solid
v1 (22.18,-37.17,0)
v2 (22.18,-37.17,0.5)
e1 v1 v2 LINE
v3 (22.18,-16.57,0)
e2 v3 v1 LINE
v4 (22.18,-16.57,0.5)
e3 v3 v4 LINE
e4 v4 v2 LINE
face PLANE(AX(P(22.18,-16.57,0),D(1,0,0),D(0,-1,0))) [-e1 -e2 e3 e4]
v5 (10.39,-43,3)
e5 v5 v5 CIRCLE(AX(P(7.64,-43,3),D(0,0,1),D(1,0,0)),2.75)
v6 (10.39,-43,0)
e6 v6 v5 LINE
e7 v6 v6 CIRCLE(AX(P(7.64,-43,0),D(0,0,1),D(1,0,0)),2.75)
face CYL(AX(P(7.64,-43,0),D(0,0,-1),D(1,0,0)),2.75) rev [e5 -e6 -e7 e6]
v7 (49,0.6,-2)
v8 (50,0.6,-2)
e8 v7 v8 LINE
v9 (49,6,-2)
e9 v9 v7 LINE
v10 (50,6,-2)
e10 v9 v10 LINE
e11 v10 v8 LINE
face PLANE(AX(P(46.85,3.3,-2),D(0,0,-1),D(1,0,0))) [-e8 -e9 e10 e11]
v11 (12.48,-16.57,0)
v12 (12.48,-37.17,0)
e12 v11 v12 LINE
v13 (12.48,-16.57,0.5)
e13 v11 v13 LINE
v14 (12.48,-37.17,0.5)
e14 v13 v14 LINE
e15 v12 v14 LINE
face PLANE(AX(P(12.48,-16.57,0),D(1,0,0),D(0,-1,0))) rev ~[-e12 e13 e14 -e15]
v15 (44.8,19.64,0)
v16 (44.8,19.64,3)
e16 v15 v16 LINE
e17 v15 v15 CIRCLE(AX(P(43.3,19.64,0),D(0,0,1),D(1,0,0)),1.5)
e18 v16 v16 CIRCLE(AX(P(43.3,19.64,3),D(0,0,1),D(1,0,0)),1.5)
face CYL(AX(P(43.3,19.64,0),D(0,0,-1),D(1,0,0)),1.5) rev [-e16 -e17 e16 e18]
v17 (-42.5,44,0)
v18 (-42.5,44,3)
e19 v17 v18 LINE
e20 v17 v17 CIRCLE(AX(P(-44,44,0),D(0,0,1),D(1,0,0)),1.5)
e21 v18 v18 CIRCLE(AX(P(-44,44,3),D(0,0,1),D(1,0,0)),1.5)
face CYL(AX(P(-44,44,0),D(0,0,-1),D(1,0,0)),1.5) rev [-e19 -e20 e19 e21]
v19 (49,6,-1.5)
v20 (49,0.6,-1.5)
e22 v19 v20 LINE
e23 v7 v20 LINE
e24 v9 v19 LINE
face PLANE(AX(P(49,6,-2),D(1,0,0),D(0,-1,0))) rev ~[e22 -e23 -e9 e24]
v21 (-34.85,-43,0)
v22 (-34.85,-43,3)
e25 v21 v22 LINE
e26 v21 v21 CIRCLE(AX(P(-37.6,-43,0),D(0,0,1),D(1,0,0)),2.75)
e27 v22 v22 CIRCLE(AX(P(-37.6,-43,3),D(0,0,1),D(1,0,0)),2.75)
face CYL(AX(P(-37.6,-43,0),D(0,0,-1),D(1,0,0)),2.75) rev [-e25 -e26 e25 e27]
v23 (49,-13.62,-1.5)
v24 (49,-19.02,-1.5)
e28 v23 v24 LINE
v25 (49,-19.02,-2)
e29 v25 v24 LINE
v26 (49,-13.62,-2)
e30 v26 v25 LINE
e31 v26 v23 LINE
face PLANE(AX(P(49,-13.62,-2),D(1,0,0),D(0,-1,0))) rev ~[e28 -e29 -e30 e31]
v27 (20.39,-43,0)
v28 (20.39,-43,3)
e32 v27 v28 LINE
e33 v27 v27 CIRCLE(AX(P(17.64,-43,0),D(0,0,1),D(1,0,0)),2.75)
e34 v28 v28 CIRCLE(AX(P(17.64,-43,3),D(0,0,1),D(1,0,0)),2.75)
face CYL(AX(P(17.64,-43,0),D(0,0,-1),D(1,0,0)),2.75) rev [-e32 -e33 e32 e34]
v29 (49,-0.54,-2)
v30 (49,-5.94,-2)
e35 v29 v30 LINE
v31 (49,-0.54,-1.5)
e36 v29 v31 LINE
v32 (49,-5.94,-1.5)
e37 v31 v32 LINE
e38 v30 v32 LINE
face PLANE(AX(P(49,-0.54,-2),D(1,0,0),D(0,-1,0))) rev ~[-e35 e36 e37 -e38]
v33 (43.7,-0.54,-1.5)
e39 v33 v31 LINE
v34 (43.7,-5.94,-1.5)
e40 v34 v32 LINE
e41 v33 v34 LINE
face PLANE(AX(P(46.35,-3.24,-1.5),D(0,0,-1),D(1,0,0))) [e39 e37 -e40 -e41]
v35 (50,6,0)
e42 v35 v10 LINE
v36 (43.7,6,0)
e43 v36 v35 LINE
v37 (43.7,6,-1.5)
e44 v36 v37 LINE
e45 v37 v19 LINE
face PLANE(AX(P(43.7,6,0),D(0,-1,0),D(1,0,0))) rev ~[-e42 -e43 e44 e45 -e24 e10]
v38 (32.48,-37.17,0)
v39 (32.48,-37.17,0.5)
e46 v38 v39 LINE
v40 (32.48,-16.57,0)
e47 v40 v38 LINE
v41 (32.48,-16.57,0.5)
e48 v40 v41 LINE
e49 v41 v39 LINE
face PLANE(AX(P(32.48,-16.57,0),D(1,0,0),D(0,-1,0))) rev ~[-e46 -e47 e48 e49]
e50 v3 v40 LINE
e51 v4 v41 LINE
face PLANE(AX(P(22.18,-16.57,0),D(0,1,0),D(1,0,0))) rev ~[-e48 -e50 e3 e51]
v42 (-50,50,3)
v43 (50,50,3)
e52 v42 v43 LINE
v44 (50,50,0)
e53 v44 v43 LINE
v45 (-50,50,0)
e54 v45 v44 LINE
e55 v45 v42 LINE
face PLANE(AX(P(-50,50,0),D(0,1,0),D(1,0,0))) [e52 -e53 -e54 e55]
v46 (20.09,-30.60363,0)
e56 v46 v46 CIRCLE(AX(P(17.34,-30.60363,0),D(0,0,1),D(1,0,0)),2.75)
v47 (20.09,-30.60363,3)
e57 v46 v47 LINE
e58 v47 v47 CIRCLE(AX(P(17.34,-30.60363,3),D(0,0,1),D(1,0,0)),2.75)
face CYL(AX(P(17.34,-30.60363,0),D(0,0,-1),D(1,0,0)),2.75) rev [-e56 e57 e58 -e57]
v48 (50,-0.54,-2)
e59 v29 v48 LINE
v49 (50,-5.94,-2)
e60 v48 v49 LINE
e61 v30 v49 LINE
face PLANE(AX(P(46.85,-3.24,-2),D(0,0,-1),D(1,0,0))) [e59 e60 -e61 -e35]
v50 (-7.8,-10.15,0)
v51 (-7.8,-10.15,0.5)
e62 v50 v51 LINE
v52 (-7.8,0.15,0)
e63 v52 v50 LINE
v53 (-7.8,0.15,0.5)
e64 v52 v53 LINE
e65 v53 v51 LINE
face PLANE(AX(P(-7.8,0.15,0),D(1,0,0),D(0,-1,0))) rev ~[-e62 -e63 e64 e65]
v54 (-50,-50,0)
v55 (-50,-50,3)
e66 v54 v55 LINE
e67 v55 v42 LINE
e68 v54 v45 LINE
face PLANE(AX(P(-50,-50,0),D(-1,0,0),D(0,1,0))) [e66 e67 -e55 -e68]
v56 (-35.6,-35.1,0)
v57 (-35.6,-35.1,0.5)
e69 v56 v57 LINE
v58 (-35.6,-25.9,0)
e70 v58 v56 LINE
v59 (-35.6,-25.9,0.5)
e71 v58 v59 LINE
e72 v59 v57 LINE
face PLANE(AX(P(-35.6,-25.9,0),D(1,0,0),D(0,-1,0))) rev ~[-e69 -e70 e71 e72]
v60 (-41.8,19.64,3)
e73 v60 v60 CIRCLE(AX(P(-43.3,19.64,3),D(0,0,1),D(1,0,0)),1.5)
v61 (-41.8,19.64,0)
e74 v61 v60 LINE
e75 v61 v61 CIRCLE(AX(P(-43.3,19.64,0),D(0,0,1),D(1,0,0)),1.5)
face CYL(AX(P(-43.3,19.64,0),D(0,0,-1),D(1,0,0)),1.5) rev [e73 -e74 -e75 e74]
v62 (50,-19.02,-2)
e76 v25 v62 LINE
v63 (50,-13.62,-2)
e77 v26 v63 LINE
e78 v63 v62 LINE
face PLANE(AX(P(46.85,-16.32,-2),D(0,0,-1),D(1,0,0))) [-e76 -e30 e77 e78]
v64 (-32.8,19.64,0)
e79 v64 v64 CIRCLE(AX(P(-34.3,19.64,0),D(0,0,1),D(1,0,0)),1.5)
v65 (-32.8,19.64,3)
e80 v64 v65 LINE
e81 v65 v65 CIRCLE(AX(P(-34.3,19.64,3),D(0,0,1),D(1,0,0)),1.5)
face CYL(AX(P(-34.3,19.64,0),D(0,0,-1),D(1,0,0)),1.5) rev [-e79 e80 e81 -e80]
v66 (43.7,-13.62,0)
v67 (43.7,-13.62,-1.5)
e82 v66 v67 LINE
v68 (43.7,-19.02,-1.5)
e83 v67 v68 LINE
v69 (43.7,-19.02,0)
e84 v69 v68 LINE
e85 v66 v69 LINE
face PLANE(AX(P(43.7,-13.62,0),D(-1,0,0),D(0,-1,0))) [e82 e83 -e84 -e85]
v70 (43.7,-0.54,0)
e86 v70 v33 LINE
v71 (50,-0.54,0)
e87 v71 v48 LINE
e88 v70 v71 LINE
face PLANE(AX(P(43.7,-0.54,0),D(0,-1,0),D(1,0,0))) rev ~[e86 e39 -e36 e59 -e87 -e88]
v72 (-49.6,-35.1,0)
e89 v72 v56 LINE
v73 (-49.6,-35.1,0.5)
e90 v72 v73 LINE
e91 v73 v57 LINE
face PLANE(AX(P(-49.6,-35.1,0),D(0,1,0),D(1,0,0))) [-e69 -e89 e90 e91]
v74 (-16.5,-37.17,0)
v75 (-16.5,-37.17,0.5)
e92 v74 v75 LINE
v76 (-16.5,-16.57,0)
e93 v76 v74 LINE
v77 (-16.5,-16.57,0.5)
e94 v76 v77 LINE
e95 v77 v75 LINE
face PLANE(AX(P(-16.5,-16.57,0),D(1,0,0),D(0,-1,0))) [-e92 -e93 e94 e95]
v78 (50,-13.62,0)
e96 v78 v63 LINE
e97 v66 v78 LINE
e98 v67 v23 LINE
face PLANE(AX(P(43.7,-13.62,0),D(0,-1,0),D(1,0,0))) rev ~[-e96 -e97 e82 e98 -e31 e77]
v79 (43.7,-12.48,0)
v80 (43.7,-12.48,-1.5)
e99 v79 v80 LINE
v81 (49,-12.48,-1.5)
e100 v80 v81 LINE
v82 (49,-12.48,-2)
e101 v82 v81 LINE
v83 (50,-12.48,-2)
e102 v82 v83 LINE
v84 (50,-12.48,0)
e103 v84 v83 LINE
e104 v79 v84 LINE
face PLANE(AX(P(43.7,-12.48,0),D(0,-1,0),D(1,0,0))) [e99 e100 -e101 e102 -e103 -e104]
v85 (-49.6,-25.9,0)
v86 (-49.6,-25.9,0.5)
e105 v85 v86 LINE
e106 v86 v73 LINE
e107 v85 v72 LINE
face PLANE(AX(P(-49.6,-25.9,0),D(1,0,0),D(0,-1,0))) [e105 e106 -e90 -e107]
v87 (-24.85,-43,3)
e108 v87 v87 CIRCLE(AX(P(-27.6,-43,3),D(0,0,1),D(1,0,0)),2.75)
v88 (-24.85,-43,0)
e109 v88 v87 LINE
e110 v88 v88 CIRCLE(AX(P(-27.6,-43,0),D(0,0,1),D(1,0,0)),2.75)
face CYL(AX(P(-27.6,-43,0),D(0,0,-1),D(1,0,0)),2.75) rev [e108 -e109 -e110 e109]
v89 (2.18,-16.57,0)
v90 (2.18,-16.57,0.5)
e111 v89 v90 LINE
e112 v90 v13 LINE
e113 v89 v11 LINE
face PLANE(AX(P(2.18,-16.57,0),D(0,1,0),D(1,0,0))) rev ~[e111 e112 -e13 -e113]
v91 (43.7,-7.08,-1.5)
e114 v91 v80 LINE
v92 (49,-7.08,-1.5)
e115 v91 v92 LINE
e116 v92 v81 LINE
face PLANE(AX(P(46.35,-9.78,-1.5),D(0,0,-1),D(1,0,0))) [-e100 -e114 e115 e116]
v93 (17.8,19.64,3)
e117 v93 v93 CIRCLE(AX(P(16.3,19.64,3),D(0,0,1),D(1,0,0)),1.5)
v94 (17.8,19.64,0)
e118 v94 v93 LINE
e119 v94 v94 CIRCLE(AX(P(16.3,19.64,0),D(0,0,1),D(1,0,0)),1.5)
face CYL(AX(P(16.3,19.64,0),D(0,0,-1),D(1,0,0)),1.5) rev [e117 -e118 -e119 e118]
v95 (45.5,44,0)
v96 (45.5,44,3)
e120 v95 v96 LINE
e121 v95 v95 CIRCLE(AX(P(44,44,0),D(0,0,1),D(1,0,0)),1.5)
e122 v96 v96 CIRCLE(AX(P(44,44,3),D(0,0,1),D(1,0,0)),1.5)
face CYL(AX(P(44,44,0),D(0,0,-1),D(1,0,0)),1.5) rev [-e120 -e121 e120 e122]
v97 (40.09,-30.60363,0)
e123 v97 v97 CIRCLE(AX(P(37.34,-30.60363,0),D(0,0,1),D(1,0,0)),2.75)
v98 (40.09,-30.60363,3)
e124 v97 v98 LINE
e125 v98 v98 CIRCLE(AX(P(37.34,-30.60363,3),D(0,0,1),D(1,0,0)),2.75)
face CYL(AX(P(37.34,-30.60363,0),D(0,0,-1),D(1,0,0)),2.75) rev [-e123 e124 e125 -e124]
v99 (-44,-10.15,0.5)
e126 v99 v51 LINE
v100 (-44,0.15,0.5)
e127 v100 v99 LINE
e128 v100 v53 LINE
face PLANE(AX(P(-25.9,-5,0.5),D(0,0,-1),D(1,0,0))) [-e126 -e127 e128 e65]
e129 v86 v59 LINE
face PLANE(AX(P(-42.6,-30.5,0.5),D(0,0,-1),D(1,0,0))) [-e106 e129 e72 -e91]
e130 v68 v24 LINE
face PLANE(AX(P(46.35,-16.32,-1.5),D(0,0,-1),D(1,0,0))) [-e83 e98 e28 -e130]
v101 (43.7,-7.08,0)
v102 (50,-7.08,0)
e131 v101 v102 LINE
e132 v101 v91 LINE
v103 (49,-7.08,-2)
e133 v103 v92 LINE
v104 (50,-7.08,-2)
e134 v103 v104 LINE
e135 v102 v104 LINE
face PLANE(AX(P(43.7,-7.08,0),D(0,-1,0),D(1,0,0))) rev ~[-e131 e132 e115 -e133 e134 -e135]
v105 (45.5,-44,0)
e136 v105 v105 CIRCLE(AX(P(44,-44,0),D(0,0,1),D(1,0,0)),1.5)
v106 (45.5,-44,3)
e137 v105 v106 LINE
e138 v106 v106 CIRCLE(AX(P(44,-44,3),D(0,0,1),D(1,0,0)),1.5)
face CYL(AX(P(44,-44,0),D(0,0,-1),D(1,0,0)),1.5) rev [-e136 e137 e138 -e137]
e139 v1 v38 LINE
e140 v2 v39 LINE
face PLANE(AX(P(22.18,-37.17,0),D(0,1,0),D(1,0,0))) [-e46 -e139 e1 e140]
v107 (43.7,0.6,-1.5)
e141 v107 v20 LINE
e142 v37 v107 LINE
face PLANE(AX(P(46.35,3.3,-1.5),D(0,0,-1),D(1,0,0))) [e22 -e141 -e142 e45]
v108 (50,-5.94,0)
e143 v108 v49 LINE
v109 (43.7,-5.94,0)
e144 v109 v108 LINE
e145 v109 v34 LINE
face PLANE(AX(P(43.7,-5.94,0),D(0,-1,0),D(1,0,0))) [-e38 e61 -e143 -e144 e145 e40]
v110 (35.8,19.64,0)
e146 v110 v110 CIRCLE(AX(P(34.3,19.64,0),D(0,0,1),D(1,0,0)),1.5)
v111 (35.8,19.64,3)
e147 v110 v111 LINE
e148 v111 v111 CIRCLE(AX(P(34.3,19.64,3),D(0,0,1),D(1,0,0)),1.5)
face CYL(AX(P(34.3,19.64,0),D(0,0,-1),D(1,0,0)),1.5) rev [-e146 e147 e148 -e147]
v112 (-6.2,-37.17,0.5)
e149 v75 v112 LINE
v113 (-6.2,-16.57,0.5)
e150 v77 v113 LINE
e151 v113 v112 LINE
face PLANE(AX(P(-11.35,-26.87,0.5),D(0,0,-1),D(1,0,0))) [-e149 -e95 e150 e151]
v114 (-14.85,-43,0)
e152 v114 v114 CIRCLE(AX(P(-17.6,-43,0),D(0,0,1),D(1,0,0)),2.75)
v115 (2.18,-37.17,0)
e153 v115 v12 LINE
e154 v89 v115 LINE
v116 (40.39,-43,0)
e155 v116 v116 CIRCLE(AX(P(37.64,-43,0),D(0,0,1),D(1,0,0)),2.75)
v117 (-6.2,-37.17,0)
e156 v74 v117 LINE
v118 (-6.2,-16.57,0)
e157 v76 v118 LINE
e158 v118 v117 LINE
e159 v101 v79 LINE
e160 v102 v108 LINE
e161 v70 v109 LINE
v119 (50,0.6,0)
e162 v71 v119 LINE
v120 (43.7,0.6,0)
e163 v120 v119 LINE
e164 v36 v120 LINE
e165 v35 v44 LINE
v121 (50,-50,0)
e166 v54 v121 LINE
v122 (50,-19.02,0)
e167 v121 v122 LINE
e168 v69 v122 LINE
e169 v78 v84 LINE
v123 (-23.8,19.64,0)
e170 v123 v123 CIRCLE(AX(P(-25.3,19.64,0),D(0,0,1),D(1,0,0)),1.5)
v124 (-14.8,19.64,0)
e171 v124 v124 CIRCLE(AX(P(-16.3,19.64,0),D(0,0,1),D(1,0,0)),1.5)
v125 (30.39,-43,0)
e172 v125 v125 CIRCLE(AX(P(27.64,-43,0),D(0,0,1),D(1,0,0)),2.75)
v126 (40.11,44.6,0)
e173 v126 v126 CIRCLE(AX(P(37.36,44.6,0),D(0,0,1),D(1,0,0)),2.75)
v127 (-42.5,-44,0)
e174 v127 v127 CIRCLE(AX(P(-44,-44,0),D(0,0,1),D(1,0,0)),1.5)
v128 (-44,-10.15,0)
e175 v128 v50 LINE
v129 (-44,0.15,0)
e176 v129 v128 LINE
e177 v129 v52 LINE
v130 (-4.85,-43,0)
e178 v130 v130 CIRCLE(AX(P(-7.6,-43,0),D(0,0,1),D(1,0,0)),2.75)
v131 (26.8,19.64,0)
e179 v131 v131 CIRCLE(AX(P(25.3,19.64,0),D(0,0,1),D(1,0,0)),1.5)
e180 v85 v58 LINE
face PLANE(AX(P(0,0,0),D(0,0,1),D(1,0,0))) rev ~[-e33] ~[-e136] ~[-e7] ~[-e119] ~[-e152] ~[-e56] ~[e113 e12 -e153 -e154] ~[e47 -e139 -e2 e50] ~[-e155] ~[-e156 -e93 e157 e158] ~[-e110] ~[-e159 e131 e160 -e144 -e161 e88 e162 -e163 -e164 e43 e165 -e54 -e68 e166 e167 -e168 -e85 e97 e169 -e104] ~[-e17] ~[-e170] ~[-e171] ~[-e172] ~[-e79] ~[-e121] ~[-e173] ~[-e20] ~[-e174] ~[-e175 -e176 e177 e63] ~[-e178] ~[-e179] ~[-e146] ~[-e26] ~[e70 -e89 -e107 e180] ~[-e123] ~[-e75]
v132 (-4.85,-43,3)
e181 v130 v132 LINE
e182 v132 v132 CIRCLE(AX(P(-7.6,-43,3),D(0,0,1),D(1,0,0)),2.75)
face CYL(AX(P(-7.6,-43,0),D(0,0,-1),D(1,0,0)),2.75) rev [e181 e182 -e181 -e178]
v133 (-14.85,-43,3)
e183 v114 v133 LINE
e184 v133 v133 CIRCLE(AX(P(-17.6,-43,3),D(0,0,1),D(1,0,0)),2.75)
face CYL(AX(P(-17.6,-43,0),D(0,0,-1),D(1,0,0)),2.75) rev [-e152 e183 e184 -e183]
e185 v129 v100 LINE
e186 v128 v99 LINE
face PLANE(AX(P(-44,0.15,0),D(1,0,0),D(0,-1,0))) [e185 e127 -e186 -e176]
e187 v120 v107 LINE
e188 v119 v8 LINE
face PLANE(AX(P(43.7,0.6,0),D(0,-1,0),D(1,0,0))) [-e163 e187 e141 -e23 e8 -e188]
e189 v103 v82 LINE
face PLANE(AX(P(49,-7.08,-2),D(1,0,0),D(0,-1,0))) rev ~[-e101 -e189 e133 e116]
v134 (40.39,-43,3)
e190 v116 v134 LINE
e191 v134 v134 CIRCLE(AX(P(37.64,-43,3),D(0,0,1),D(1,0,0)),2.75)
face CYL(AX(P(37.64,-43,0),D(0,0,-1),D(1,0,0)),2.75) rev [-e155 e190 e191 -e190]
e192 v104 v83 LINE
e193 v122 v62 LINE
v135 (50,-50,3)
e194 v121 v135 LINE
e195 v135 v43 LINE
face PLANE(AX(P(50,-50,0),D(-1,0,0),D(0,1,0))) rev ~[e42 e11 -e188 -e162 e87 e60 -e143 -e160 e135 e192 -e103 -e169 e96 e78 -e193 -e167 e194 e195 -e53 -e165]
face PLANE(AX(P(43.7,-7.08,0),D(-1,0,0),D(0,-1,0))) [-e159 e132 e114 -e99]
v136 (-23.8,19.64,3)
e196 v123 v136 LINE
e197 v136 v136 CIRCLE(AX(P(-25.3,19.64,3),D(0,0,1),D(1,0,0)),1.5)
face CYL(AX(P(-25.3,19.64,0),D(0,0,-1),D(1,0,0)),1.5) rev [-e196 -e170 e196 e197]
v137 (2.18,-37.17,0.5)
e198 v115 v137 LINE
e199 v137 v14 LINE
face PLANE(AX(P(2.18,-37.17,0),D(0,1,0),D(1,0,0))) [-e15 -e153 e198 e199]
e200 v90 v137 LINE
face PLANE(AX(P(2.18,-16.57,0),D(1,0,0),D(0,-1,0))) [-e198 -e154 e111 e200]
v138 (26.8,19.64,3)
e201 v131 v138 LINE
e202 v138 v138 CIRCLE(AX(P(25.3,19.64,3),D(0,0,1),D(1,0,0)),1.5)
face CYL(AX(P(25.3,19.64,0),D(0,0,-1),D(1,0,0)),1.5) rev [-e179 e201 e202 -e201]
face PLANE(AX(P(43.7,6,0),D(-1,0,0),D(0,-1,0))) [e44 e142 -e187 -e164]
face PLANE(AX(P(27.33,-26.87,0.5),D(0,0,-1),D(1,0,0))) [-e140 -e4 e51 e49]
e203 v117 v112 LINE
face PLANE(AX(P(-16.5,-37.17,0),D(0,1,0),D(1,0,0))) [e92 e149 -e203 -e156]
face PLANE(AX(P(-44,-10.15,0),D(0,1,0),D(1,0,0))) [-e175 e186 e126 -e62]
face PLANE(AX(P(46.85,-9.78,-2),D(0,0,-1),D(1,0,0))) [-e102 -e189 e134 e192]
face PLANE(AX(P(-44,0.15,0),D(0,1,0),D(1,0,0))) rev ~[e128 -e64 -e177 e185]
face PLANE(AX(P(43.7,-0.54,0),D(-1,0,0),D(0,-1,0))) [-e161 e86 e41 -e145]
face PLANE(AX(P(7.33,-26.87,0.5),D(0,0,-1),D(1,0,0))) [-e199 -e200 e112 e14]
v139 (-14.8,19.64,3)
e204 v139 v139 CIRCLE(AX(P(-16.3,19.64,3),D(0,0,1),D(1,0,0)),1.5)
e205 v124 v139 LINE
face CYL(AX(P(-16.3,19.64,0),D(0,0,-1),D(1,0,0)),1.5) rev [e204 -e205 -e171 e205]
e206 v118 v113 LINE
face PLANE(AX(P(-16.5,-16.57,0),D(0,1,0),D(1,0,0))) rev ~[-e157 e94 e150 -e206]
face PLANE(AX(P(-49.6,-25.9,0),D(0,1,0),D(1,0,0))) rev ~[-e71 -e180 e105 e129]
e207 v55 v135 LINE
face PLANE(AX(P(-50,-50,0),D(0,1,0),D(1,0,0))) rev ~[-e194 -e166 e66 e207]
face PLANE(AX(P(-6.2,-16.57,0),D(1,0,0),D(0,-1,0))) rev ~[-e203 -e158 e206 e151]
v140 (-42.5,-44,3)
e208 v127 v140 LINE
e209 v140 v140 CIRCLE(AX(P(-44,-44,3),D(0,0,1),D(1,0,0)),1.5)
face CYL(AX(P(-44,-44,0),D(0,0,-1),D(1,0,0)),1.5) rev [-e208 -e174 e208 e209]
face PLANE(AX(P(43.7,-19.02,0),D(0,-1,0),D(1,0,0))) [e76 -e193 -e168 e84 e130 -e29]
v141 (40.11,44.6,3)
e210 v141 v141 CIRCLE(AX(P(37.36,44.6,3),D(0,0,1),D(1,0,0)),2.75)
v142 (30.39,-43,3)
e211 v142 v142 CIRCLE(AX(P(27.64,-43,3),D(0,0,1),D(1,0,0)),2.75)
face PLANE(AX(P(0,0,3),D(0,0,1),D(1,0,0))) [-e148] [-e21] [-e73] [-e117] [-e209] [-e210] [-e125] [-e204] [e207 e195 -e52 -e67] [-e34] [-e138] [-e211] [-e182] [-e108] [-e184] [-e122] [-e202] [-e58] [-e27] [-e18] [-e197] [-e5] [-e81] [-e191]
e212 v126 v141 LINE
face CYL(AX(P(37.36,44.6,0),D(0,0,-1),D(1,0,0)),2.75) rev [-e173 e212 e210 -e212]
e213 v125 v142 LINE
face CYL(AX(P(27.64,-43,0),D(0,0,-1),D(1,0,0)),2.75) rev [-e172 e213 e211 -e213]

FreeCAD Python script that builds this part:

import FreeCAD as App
import Part
import Sketcher

V = App.Vector
Q = App.Units.Quantity

doc = App.newDocument("Part")
body = doc.addObject("PartDesign::Body", "Body")

# Sketch on XY plane
sketch1 = doc.addObject("Sketcher::SketchObject", "Sketch")
body.addObject(sketch1)
sketch1.AttachmentSupport = (doc.XY_Plane, [""])
sketch1.MapMode = "FlatFace"
sketch1.addGeometry(Part.LineSegment(V(-50, 50, 0), V(-50, -50, 0)), False)
sketch1.addGeometry(Part.LineSegment(V(-50, -50, 0), V(50, -50, 0)), False)
sketch1.addGeometry(Part.LineSegment(V(50, -50, 0), V(50, 50, 0)), False)
sketch1.addGeometry(Part.LineSegment(V(50, 50, 0), V(-50, 50, 0)), False)
sketch1.addGeometry(Part.Circle(V(-44, -44, 0), V(0, 0, 1), 1.5), False)
sketch1.addGeometry(Part.Circle(V(-37.6, -43, 0), V(0, 0, 1), 2.8), False)
sketch1.addGeometry(Part.Circle(V(-27.6, -43, 0), V(0, 0, 1), 2.8), False)
sketch1.addGeometry(Part.Circle(V(-17.6, -43, 0), V(0, 0, 1), 2.8), False)
sketch1.addGeometry(Part.Circle(V(-7.6, -43, 0), V(0, 0, 1), 2.8), False)
sketch1.addGeometry(Part.Circle(V(7.6, -43, 0), V(0, 0, 1), 2.8), False)
sketch1.addGeometry(Part.Circle(V(17.6, -43, 0), V(0, 0, 1), 2.8), False)
sketch1.addGeometry(Part.Circle(V(17.3, -30.6, 0), V(0, 0, 1), 2.8), False)
sketch1.addGeometry(Part.Circle(V(27.6, -43, 0), V(0, 0, 1), 2.8), False)
sketch1.addGeometry(Part.Circle(V(37.6, -43, 0), V(0, 0, 1), 2.8), False)
sketch1.addGeometry(Part.Circle(V(44, -44, 0), V(0, 0, 1), 1.5), False)
sketch1.addGeometry(Part.Circle(V(37.3, -30.6, 0), V(0, 0, 1), 2.8), False)
sketch1.addGeometry(Part.Circle(V(-43.3, 19.6, 0), V(0, 0, 1), 1.5), False)
sketch1.addGeometry(Part.Circle(V(-34.3, 19.6, 0), V(0, 0, 1), 1.5), False)
sketch1.addGeometry(Part.Circle(V(-25.3, 19.6, 0), V(0, 0, 1), 1.5), False)
sketch1.addGeometry(Part.Circle(V(-16.3, 19.6, 0), V(0, 0, 1), 1.5), False)
sketch1.addGeometry(Part.Circle(V(-44, 44, 0), V(0, 0, 1), 1.5), False)
sketch1.addGeometry(Part.Circle(V(16.3, 19.6, 0), V(0, 0, 1), 1.5), False)
sketch1.addGeometry(Part.Circle(V(25.3, 19.6, 0), V(0, 0, 1), 1.5), False)
sketch1.addGeometry(Part.Circle(V(34.3, 19.6, 0), V(0, 0, 1), 1.5), False)
sketch1.addGeometry(Part.Circle(V(43.3, 19.6, 0), V(0, 0, 1), 1.5), False)
sketch1.addGeometry(Part.Circle(V(37.4, 44.6, 0), V(0, 0, 1), 2.8), False)
sketch1.addGeometry(Part.Circle(V(44, 44, 0), V(0, 0, 1), 1.5), False)
sketch1.addConstraint(Sketcher.Constraint("Coincident", 0, 2, 1, 1))
sketch1.addConstraint(Sketcher.Constraint("Coincident", 1, 2, 2, 1))
sketch1.addConstraint(Sketcher.Constraint("Coincident", 2, 2, 3, 1))
sketch1.addConstraint(Sketcher.Constraint("Coincident", 3, 2, 0, 1))
sketch1.addConstraint(Sketcher.Constraint("Vertical", 0))
sketch1.addConstraint(Sketcher.Constraint("Horizontal", 1))
sketch1.addConstraint(Sketcher.Constraint("Vertical", 2))
sketch1.addConstraint(Sketcher.Constraint("Horizontal", 3))
sketch1.addConstraint(Sketcher.Constraint("Equal", 5, 6))
sketch1.addConstraint(Sketcher.Constraint("Equal", 6, 7))
sketch1.addConstraint(Sketcher.Constraint("Equal", 7, 8))
sketch1.addConstraint(Sketcher.Constraint("Equal", 8, 9))
sketch1.addConstraint(Sketcher.Constraint("Equal", 9, 10))
sketch1.addConstraint(Sketcher.Constraint("Equal", 10, 11))
sketch1.addConstraint(Sketcher.Constraint("Equal", 11, 12))
sketch1.addConstraint(Sketcher.Constraint("Equal", 12, 13))
sketch1.addConstraint(Sketcher.Constraint("Equal", 4, 14))
sketch1.addConstraint(Sketcher.Constraint("Equal", 13, 15))
sketch1.addConstraint(Sketcher.Constraint("Equal", 14, 16))
sketch1.addConstraint(Sketcher.Constraint("Equal", 16, 17))
sketch1.addConstraint(Sketcher.Constraint("Equal", 17, 18))
sketch1.addConstraint(Sketcher.Constraint("Equal", 18, 19))
sketch1.addConstraint(Sketcher.Constraint("Equal", 19, 20))
sketch1.addConstraint(Sketcher.Constraint("Equal", 20, 21))
sketch1.addConstraint(Sketcher.Constraint("Equal", 21, 22))
sketch1.addConstraint(Sketcher.Constraint("Equal", 22, 23))
sketch1.addConstraint(Sketcher.Constraint("Equal", 23, 24))
sketch1.addConstraint(Sketcher.Constraint("Equal", 15, 25))
sketch1.addConstraint(Sketcher.Constraint("Equal", 24, 26))
sketch1.addConstraint(Sketcher.Constraint("Symmetric", 14, 3, 20, 3, -1, 1))
sketch1.addConstraint(Sketcher.Constraint("Symmetric", 4, 3, 26, 3, -1, 1))
sketch1.addConstraint(Sketcher.Constraint("Symmetric", 0, 2, 2, 2, -1, 1))
sketch1.addConstraint(Sketcher.Constraint("Symmetric", 4, 3, 14, 3, -2))
sketch1.addConstraint(Sketcher.Constraint("Symmetric", 19, 3, 21, 3, -2))
sketch1.addConstraint(Sketcher.Constraint("Symmetric", 18, 3, 22, 3, -2))
sketch1.addConstraint(Sketcher.Constraint("Symmetric", 17, 3, 23, 3, -2))
sketch1.addConstraint(Sketcher.Constraint("Symmetric", 16, 3, 24, 3, -2))
sketch1.addConstraint(Sketcher.Constraint("Horizontal", 5, 3, 6, 3))
sketch1.addConstraint(Sketcher.Constraint("Horizontal", 6, 3, 7, 3))
sketch1.addConstraint(Sketcher.Constraint("Horizontal", 7, 3, 8, 3))
sketch1.addConstraint(Sketcher.Constraint("Horizontal", 8, 3, 9, 3))
sketch1.addConstraint(Sketcher.Constraint("Horizontal", 9, 3, 10, 3))
sketch1.addConstraint(Sketcher.Constraint("Horizontal", 10, 3, 12, 3))
sketch1.addConstraint(Sketcher.Constraint("Horizontal", 12, 3, 13, 3))
sketch1.addConstraint(Sketcher.Constraint("Horizontal", 11, 3, 15, 3))
sketch1.addConstraint(Sketcher.Constraint("Horizontal", 16, 3, 17, 3))
sketch1.addConstraint(Sketcher.Constraint("Horizontal", 17, 3, 18, 3))
sketch1.addConstraint(Sketcher.Constraint("Horizontal", 18, 3, 19, 3))
sketch1.addConstraint(Sketcher.Constraint("Equal", 3, 0))
sketch1.addConstraint(Sketcher.Constraint("Diameter", 4, Q("3 mm")))
sketch1.addConstraint(Sketcher.Constraint("Diameter", 5, Q("5.5 mm")))
sketch1.addConstraint(Sketcher.Constraint("DistanceX", 1, 1, 1, 2, Q("100 mm")))
sketch1.addConstraint(Sketcher.Constraint("DistanceX", 4, 3, -1, 1, Q("44 mm")))
sketch1.addConstraint(Sketcher.Constraint("DistanceY", 4, 3, -1, 1, Q("44 mm")))
sketch1.addConstraint(Sketcher.Constraint("DistanceY", 5, 3, -1, 1, Q("43 mm")))
sketch1.addConstraint(Sketcher.Constraint("DistanceX", 5, 3, 6, 3, Q("10 mm")))
sketch1.addConstraint(Sketcher.Constraint("DistanceX", 6, 3, 7, 3, Q("10 mm")))
sketch1.addConstraint(Sketcher.Constraint("DistanceX", 7, 3, 8, 3, Q("10 mm")))
sketch1.addConstraint(Sketcher.Constraint("DistanceX", 9, 3, 10, 3, Q("10 mm")))
sketch1.addConstraint(Sketcher.Constraint("DistanceX", 10, 3, 12, 3, Q("10 mm")))
sketch1.addConstraint(Sketcher.Constraint("DistanceX", 12, 3, 13, 3, Q("10 mm")))
sketch1.addConstraint(Sketcher.Constraint("DistanceX", 11, 3, 15, 3, Q("20 mm")))
sketch1.addConstraint(Sketcher.Constraint("DistanceX", 16, 3, 17, 3, Q("9 mm")))
sketch1.addConstraint(Sketcher.Constraint("DistanceX", 17, 3, 18, 3, Q("9 mm")))
sketch1.addConstraint(Sketcher.Constraint("DistanceX", 18, 3, 19, 3, Q("9 mm")))
sketch1.addConstraint(Sketcher.Constraint("DistanceX", 5, 3, -1, 1, Q("37.6 mm")))
sketch1.addConstraint(Sketcher.Constraint("DistanceX", 16, 3, -1, 1, Q("43.3 mm")))
sketch1.addConstraint(Sketcher.Constraint("DistanceY", -1, 1, 25, 3, Q("44.6 mm")))
sketch1.addConstraint(Sketcher.Constraint("DistanceX", 11, 3, 10, 3, Q("0.3 mm")))
sketch1.addConstraint(Sketcher.Constraint("DistanceX", -1, 1, 9, 3, Q("7.64 mm")))
sketch1.addConstraint(Sketcher.Constraint("DistanceY", -1, 1, 16, 3, Q("19.64 mm")))
sketch1.addConstraint(Sketcher.Constraint("DistanceX", -1, 1, 25, 3, Q("37.36 mm")))
sketch1.addConstraint(Sketcher.Constraint("DistanceY", 11, 3, -1, 1, Q("30.60363 mm")))
pad1 = doc.addObject("PartDesign::Pad", "Pad")
body.addObject(pad1)
pad1.Profile = sketch1
pad1.Length = 3

# Sketch on XY plane
sketch2 = doc.addObject("Sketcher::SketchObject", "Sketch001")
body.addObject(sketch2)
sketch2.AttachmentSupport = (doc.XY_Plane, [""])
sketch2.MapMode = "FlatFace"
sketch2.addGeometry(Part.LineSegment(V(-50, -35, 0), V(-50, -26, 0)), False)
sketch2.addGeometry(Part.LineSegment(V(-50, -26, 0), V(-36, -26, 0)), False)
sketch2.addGeometry(Part.LineSegment(V(-36, -26, 0), V(-36, -35, 0)), False)
sketch2.addGeometry(Part.LineSegment(V(-36, -35, 0), V(-50, -35, 0)), False)
sketch2.addGeometry(Part.LineSegment(V(-16, -37, 0), V(-16, -17, 0)), False)
sketch2.addGeometry(Part.LineSegment(V(-16, -17, 0), V(-6, -17, 0)), False)
sketch2.addGeometry(Part.LineSegment(V(-6, -17, 0), V(-6, -37, 0)), False)
sketch2.addGeometry(Part.LineSegment(V(-6, -37, 0), V(-16, -37, 0)), False)
sketch2.addGeometry(Part.LineSegment(V(2, -37, 0), V(2, -17, 0)), False)
sketch2.addGeometry(Part.LineSegment(V(2, -17, 0), V(12, -17, 0)), False)
sketch2.addGeometry(Part.LineSegment(V(12, -17, 0), V(12, -37, 0)), False)
sketch2.addGeometry(Part.LineSegment(V(12, -37, 0), V(2, -37, 0)), False)
sketch2.addGeometry(Part.LineSegment(V(22, -37, 0), V(22, -17, 0)), False)
sketch2.addGeometry(Part.LineSegment(V(22, -17, 0), V(32, -17, 0)), False)
sketch2.addGeometry(Part.LineSegment(V(32, -17, 0), V(32, -37, 0)), False)
sketch2.addGeometry(Part.LineSegment(V(32, -37, 0), V(22, -37, 0)), False)
sketch2.addGeometry(Part.LineSegment(V(-44, -10, 0), V(-44, 0, 0)), False)
sketch2.addGeometry(Part.LineSegment(V(-44, 0, 0), V(-8, 0, 0)), False)
sketch2.addGeometry(Part.LineSegment(V(-8, 0, 0), V(-8, -10, 0)), False)
sketch2.addGeometry(Part.LineSegment(V(-8, -10, 0), V(-44, -10, 0)), False)
sketch2.addConstraint(Sketcher.Constraint("Coincident", 0, 2, 1, 1))
sketch2.addConstraint(Sketcher.Constraint("Coincident", 1, 2, 2, 1))
sketch2.addConstraint(Sketcher.Constraint("Coincident", 2, 2, 3, 1))
sketch2.addConstraint(Sketcher.Constraint("Coincident", 3, 2, 0, 1))
sketch2.addConstraint(Sketcher.Constraint("Coincident", 4, 2, 5, 1))
sketch2.addConstraint(Sketcher.Constraint("Coincident", 5, 2, 6, 1))
sketch2.addConstraint(Sketcher.Constraint("Coincident", 6, 2, 7, 1))
sketch2.addConstraint(Sketcher.Constraint("Coincident", 7, 2, 4, 1))
sketch2.addConstraint(Sketcher.Constraint("Coincident", 8, 2, 9, 1))
sketch2.addConstraint(Sketcher.Constraint("Coincident", 9, 2, 10, 1))
sketch2.addConstraint(Sketcher.Constraint("Coincident", 10, 2, 11, 1))
sketch2.addConstraint(Sketcher.Constraint("Coincident", 11, 2, 8, 1))
sketch2.addConstraint(Sketcher.Constraint("Coincident", 12, 2, 13, 1))
sketch2.addConstraint(Sketcher.Constraint("Coincident", 13, 2, 14, 1))
sketch2.addConstraint(Sketcher.Constraint("Coincident", 14, 2, 15, 1))
sketch2.addConstraint(Sketcher.Constraint("Coincident", 15, 2, 12, 1))
sketch2.addConstraint(Sketcher.Constraint("Coincident", 16, 2, 17, 1))
sketch2.addConstraint(Sketcher.Constraint("Coincident", 17, 2, 18, 1))
sketch2.addConstraint(Sketcher.Constraint("Coincident", 18, 2, 19, 1))
sketch2.addConstraint(Sketcher.Constraint("Coincident", 19, 2, 16, 1))
sketch2.addConstraint(Sketcher.Constraint("Vertical", 0))
sketch2.addConstraint(Sketcher.Constraint("Horizontal", 1))
sketch2.addConstraint(Sketcher.Constraint("Vertical", 2))
sketch2.addConstraint(Sketcher.Constraint("Horizontal", 3))
sketch2.addConstraint(Sketcher.Constraint("Vertical", 4))
sketch2.addConstraint(Sketcher.Constraint("Horizontal", 5))
sketch2.addConstraint(Sketcher.Constraint("Vertical", 6))
sketch2.addConstraint(Sketcher.Constraint("Horizontal", 7))
sketch2.addConstraint(Sketcher.Constraint("Vertical", 8))
sketch2.addConstraint(Sketcher.Constraint("Horizontal", 9))
sketch2.addConstraint(Sketcher.Constraint("Vertical", 10))
sketch2.addConstraint(Sketcher.Constraint("Horizontal", 11))
sketch2.addConstraint(Sketcher.Constraint("Vertical", 12))
sketch2.addConstraint(Sketcher.Constraint("Horizontal", 13))
sketch2.addConstraint(Sketcher.Constraint("Vertical", 14))
sketch2.addConstraint(Sketcher.Constraint("Horizontal", 15))
sketch2.addConstraint(Sketcher.Constraint("Vertical", 16))
sketch2.addConstraint(Sketcher.Constraint("Horizontal", 17))
sketch2.addConstraint(Sketcher.Constraint("Vertical", 18))
sketch2.addConstraint(Sketcher.Constraint("Horizontal", 19))
sketch2.addConstraint(Sketcher.Constraint("Horizontal", 5, 2, 8, 2))
sketch2.addConstraint(Sketcher.Constraint("Horizontal", 7, 2, 10, 2))
sketch2.addConstraint(Sketcher.Constraint("Horizontal", 9, 2, 12, 2))
sketch2.addConstraint(Sketcher.Constraint("Horizontal", 11, 2, 14, 2))
sketch2.addConstraint(Sketcher.Constraint("Equal", 7, 9))
sketch2.addConstraint(Sketcher.Constraint("Equal", 11, 13))
sketch2.addConstraint(Sketcher.Constraint("Equal", 15, 16))
sketch2.addConstraint(Sketcher.Constraint("DistanceX", 1, 1, 1, 2, Q("14 mm")))
sketch2.addConstraint(Sketcher.Constraint("DistanceX", 5, 1, 5, 2, Q("10.3 mm")))
sketch2.addConstraint(Sketcher.Constraint("DistanceX", 17, 1, 17, 2, Q("36.2 mm")))
sketch2.addConstraint(Sketcher.Constraint("DistanceY", 0, 1, 0, 2, Q("9.2 mm")))
sketch2.addConstraint(Sketcher.Constraint("DistanceY", 4, 1, 4, 2, Q("20.6 mm")))
sketch2.addConstraint(Sketcher.Constraint("DistanceX", 16, 2, -1, 1, Q("44 mm")))
sketch2.addConstraint(Sketcher.Constraint("DistanceX", 8, 2, 12, 2, Q("20 mm")))
sketch2.addConstraint(Sketcher.Constraint("DistanceX", 0, 2, -1, 1, Q("49.6 mm")))
sketch2.addConstraint(Sketcher.Constraint("DistanceY", 0, 2, -1, 1, Q("25.9 mm")))
sketch2.addConstraint(Sketcher.Constraint("DistanceX", 4, 2, -1, 1, Q("16.5 mm")))
sketch2.addConstraint(Sketcher.Constraint("DistanceY", 4, 2, -1, 1, Q("16.57 mm")))
sketch2.addConstraint(Sketcher.Constraint("DistanceX", -1, 1, 8, 2, Q("2.18 mm")))
sketch2.addConstraint(Sketcher.Constraint("DistanceY", -1, 1, 16, 2, Q("0.15 mm")))
pocket1 = doc.addObject("PartDesign::Pocket", "Pocket")
body.addObject(pocket1)
pocket1.Profile = sketch2
pocket1.Length = 0.5
pocket1.Reversed = True

# Sketch on XY plane
sketch3 = doc.addObject("Sketcher::SketchObject", "Sketch002")
body.addObject(sketch3)
sketch3.AttachmentSupport = (doc.XY_Plane, [""])
sketch3.MapMode = "FlatFace"
sketch3.addGeometry(Part.LineSegment(V(44, 1, 0), V(44, 6, 0)), False)
sketch3.addGeometry(Part.LineSegment(V(44, 6, 0), V(50, 6, 0)), False)
sketch3.addGeometry(Part.LineSegment(V(50, 6, 0), V(50, 1, 0)), False)
sketch3.addGeometry(Part.LineSegment(V(50, 1, 0), V(44, 1, 0)), False)
sketch3.addGeometry(Part.LineSegment(V(44, -6, 0), V(44, -1, 0)), False)
sketch3.addGeometry(Part.LineSegment(V(44, -1, 0), V(50, -1, 0)), False)
sketch3.addGeometry(Part.LineSegment(V(50, -1, 0), V(50, -6, 0)), False)
sketch3.addGeometry(Part.LineSegment(V(50, -6, 0), V(44, -6, 0)), False)
sketch3.addGeometry(Part.LineSegment(V(44, -12, 0), V(44, -7, 0)), False)
sketch3.addGeometry(Part.LineSegment(V(44, -7, 0), V(50, -7, 0)), False)
sketch3.addGeometry(Part.LineSegment(V(50, -7, 0), V(50, -12, 0)), False)
sketch3.addGeometry(Part.LineSegment(V(50, -12, 0), V(44, -12, 0)), False)
sketch3.addGeometry(Part.LineSegment(V(44, -19, 0), V(44, -14, 0)), False)
sketch3.addGeometry(Part.LineSegment(V(44, -14, 0), V(50, -14, 0)), False)
sketch3.addGeometry(Part.LineSegment(V(50, -14, 0), V(50, -19, 0)), False)
sketch3.addGeometry(Part.LineSegment(V(50, -19, 0), V(44, -19, 0)), False)
sketch3.addConstraint(Sketcher.Constraint("Coincident", 0, 2, 1, 1))
sketch3.addConstraint(Sketcher.Constraint("Coincident", 1, 2, 2, 1))
sketch3.addConstraint(Sketcher.Constraint("Coincident", 2, 2, 3, 1))
sketch3.addConstraint(Sketcher.Constraint("Coincident", 3, 2, 0, 1))
sketch3.addConstraint(Sketcher.Constraint("Coincident", 4, 2, 5, 1))
sketch3.addConstraint(Sketcher.Constraint("Coincident", 5, 2, 6, 1))
sketch3.addConstraint(Sketcher.Constraint("Coincident", 6, 2, 7, 1))
sketch3.addConstraint(Sketcher.Constraint("Coincident", 7, 2, 4, 1))
sketch3.addConstraint(Sketcher.Constraint("Coincident", 8, 2, 9, 1))
sketch3.addConstraint(Sketcher.Constraint("Coincident", 9, 2, 10, 1))
sketch3.addConstraint(Sketcher.Constraint("Coincident", 10, 2, 11, 1))
sketch3.addConstraint(Sketcher.Constraint("Coincident", 11, 2, 8, 1))
sketch3.addConstraint(Sketcher.Constraint("Coincident", 12, 2, 13, 1))
sketch3.addConstraint(Sketcher.Constraint("Coincident", 13, 2, 14, 1))
sketch3.addConstraint(Sketcher.Constraint("Coincident", 14, 2, 15, 1))
sketch3.addConstraint(Sketcher.Constraint("Coincident", 15, 2, 12, 1))
sketch3.addConstraint(Sketcher.Constraint("Vertical", 0))
sketch3.addConstraint(Sketcher.Constraint("Horizontal", 1))
sketch3.addConstraint(Sketcher.Constraint("Vertical", 2))
sketch3.addConstraint(Sketcher.Constraint("Horizontal", 3))
sketch3.addConstraint(Sketcher.Constraint("Vertical", 4))
sketch3.addConstraint(Sketcher.Constraint("Horizontal", 5))
sketch3.addConstraint(Sketcher.Constraint("Vertical", 6))
sketch3.addConstraint(Sketcher.Constraint("Horizontal", 7))
sketch3.addConstraint(Sketcher.Constraint("Vertical", 8))
sketch3.addConstraint(Sketcher.Constraint("Horizontal", 9))
sketch3.addConstraint(Sketcher.Constraint("Vertical", 10))
sketch3.addConstraint(Sketcher.Constraint("Horizontal", 11))
sketch3.addConstraint(Sketcher.Constraint("Vertical", 12))
sketch3.addConstraint(Sketcher.Constraint("Horizontal", 13))
sketch3.addConstraint(Sketcher.Constraint("Vertical", 14))
sketch3.addConstraint(Sketcher.Constraint("Horizontal", 15))
sketch3.addConstraint(Sketcher.Constraint("Vertical", 3, 2, 4, 2))
sketch3.addConstraint(Sketcher.Constraint("Vertical", 2, 2, 5, 2))
sketch3.addConstraint(Sketcher.Constraint("Vertical", 7, 2, 8, 2))
sketch3.addConstraint(Sketcher.Constraint("Vertical", 6, 2, 9, 2))
sketch3.addConstraint(Sketcher.Constraint("Vertical", 11, 2, 12, 2))
sketch3.addConstraint(Sketcher.Constraint("Vertical", 10, 2, 13, 2))
sketch3.addConstraint(Sketcher.Constraint("Equal", 2, 4))
sketch3.addConstraint(Sketcher.Constraint("Equal", 6, 8))
sketch3.addConstraint(Sketcher.Constraint("Equal", 10, 12))
sketch3.addConstraint(Sketcher.Constraint("DistanceX", 1, 1, 1, 2, Q("6.3 mm")))
sketch3.addConstraint(Sketcher.Constraint("DistanceY", 0, 1, 0, 2, Q("5.4 mm")))
sketch3.addConstraint(Sketcher.Constraint("DistanceY", -1, 1, 0, 2, Q("6 mm")))
sketch3.addConstraint(Sketcher.Constraint("DistanceX", -1, 1, 1, 2, Q("50 mm")))
sketch3.addConstraint(Sketcher.Constraint("DistanceY", 4, 2, -1, 1, Q("0.54 mm")))
sketch3.addConstraint(Sketcher.Constraint("DistanceY", 8, 2, -1, 1, Q("7.08 mm")))
sketch3.addConstraint(Sketcher.Constraint("DistanceY", 12, 2, -1, 1, Q("13.62 mm")))
pad2 = doc.addObject("PartDesign::Pad", "Pad001")
body.addObject(pad2)
pad2.Profile = sketch3
pad2.Length = 2
pad2.Reversed = True

# Sketch on XY plane
sketch4 = doc.addObject("Sketcher::SketchObject", "Sketch003")
body.addObject(sketch4)
sketch4.AttachmentSupport = (doc.XY_Plane, [""])
sketch4.MapMode = "FlatFace"
sketch4.AttachmentOffset = App.Placement(V(0, 0, -2), App.Rotation())
sketch4.addGeometry(Part.LineSegment(V(44, 1, 0), V(44, 6, 0)), False)
sketch4.addGeometry(Part.LineSegment(V(44, 6, 0), V(49, 6, 0)), False)
sketch4.addGeometry(Part.LineSegment(V(49, 6, 0), V(49, 1, 0)), False)
sketch4.addGeometry(Part.LineSegment(V(49, 1, 0), V(44, 1, 0)), False)
sketch4.addGeometry(Part.LineSegment(V(44, -6, 0), V(44, -1, 0)), False)
sketch4.addGeometry(Part.LineSegment(V(44, -1, 0), V(49, -1, 0)), False)
sketch4.addGeometry(Part.LineSegment(V(49, -1, 0), V(49, -6, 0)), False)
sketch4.addGeometry(Part.LineSegment(V(49, -6, 0), V(44, -6, 0)), False)
sketch4.addGeometry(Part.LineSegment(V(44, -12, 0), V(44, -7, 0)), False)
sketch4.addGeometry(Part.LineSegment(V(44, -7, 0), V(49, -7, 0)), False)
sketch4.addGeometry(Part.LineSegment(V(49, -7, 0), V(49, -12, 0)), False)
sketch4.addGeometry(Part.LineSegment(V(49, -12, 0), V(44, -12, 0)), False)
sketch4.addGeometry(Part.LineSegment(V(44, -19, 0), V(44, -14, 0)), False)
sketch4.addGeometry(Part.LineSegment(V(44, -14, 0), V(49, -14, 0)), False)
sketch4.addGeometry(Part.LineSegment(V(49, -14, 0), V(49, -19, 0)), False)
sketch4.addGeometry(Part.LineSegment(V(49, -19, 0), V(44, -19, 0)), False)
sketch4.addConstraint(Sketcher.Constraint("Coincident", 0, 2, 1, 1))
sketch4.addConstraint(Sketcher.Constraint("Coincident", 1, 2, 2, 1))
sketch4.addConstraint(Sketcher.Constraint("Coincident", 2, 2, 3, 1))
sketch4.addConstraint(Sketcher.Constraint("Coincident", 3, 2, 0, 1))
sketch4.addConstraint(Sketcher.Constraint("Coincident", 4, 2, 5, 1))
sketch4.addConstraint(Sketcher.Constraint("Coincident", 5, 2, 6, 1))
sketch4.addConstraint(Sketcher.Constraint("Coincident", 6, 2, 7, 1))
sketch4.addConstraint(Sketcher.Constraint("Coincident", 7, 2, 4, 1))
sketch4.addConstraint(Sketcher.Constraint("Coincident", 8, 2, 9, 1))
sketch4.addConstraint(Sketcher.Constraint("Coincident", 9, 2, 10, 1))
sketch4.addConstraint(Sketcher.Constraint("Coincident", 10, 2, 11, 1))
sketch4.addConstraint(Sketcher.Constraint("Coincident", 11, 2, 8, 1))
sketch4.addConstraint(Sketcher.Constraint("Coincident", 12, 2, 13, 1))
sketch4.addConstraint(Sketcher.Constraint("Coincident", 13, 2, 14, 1))
sketch4.addConstraint(Sketcher.Constraint("Coincident", 14, 2, 15, 1))
sketch4.addConstraint(Sketcher.Constraint("Coincident", 15, 2, 12, 1))
sketch4.addConstraint(Sketcher.Constraint("Vertical", 0))
sketch4.addConstraint(Sketcher.Constraint("Horizontal", 1))
sketch4.addConstraint(Sketcher.Constraint("Vertical", 2))
sketch4.addConstraint(Sketcher.Constraint("Horizontal", 3))
sketch4.addConstraint(Sketcher.Constraint("Vertical", 4))
sketch4.addConstraint(Sketcher.Constraint("Horizontal", 5))
sketch4.addConstraint(Sketcher.Constraint("Vertical", 6))
sketch4.addConstraint(Sketcher.Constraint("Horizontal", 7))
sketch4.addConstraint(Sketcher.Constraint("Vertical", 8))
sketch4.addConstraint(Sketcher.Constraint("Horizontal", 9))
sketch4.addConstraint(Sketcher.Constraint("Vertical", 10))
sketch4.addConstraint(Sketcher.Constraint("Horizontal", 11))
sketch4.addConstraint(Sketcher.Constraint("Vertical", 12))
sketch4.addConstraint(Sketcher.Constraint("Horizontal", 13))
sketch4.addConstraint(Sketcher.Constraint("Vertical", 14))
sketch4.addConstraint(Sketcher.Constraint("Horizontal", 15))
sketch4.addConstraint(Sketcher.Constraint("Vertical", 3, 2, 4, 2))
sketch4.addConstraint(Sketcher.Constraint("Vertical", 2, 2, 5, 2))
sketch4.addConstraint(Sketcher.Constraint("Vertical", 7, 2, 8, 2))
sketch4.addConstraint(Sketcher.Constraint("Vertical", 6, 2, 9, 2))
sketch4.addConstraint(Sketcher.Constraint("Vertical", 11, 2, 12, 2))
sketch4.addConstraint(Sketcher.Constraint("Vertical", 10, 2, 13, 2))
sketch4.addConstraint(Sketcher.Constraint("Equal", 2, 4))
sketch4.addConstraint(Sketcher.Constraint("Equal", 6, 8))
sketch4.addConstraint(Sketcher.Constraint("Equal", 10, 12))
sketch4.addConstraint(Sketcher.Constraint("DistanceX", 1, 1, 1, 2, Q("5.3 mm")))
sketch4.addConstraint(Sketcher.Constraint("DistanceY", 0, 1, 0, 2, Q("5.4 mm")))
sketch4.addConstraint(Sketcher.Constraint("DistanceY", -1, 1, 0, 2, Q("6 mm")))
sketch4.addConstraint(Sketcher.Constraint("DistanceX", -1, 1, 1, 2, Q("49 mm")))
sketch4.addConstraint(Sketcher.Constraint("DistanceY", 4, 2, -1, 1, Q("0.54 mm")))
sketch4.addConstraint(Sketcher.Constraint("DistanceY", 8, 2, -1, 1, Q("7.08 mm")))
sketch4.addConstraint(Sketcher.Constraint("DistanceY", 12, 2, -1, 1, Q("13.62 mm")))
pocket2 = doc.addObject("PartDesign::Pocket", "Pocket001")
body.addObject(pocket2)
pocket2.Profile = sketch4
pocket2.Length = 0.5
pocket2.Reversed = True

doc.recompute()
